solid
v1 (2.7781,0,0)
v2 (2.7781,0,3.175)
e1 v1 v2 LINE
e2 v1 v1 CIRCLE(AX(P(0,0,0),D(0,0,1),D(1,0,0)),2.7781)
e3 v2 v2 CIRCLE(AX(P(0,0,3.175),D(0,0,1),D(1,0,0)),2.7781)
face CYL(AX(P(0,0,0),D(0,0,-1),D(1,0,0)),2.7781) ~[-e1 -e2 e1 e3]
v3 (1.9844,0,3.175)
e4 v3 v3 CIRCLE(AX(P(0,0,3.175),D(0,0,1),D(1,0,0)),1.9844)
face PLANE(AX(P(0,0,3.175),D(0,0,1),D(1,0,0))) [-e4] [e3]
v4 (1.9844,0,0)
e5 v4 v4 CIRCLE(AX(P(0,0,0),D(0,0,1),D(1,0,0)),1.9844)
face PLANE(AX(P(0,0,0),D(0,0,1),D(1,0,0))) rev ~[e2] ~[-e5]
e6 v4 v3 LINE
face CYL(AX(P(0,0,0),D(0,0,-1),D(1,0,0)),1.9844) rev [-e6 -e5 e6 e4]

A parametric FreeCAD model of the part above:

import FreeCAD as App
import Part
import Sketcher
from FreeCAD import Vector
Q = App.Units.Quantity

doc = App.newDocument("Part")
body = doc.addObject("PartDesign::Body", "Body")

sketch1 = body.newObject("Sketcher::SketchObject", "Sketch")
sketch1.AttachmentSupport = (doc.getObject("XY_Plane"), [""])
sketch1.MapMode = "FlatFace"
sketch1.addGeometry(Part.Circle(Vector(0, 0, 0), Vector(0, 0, 1), 2.7781), False)
sketch1.addGeometry(Part.Circle(Vector(0, 0, 0), Vector(0, 0, 1), 1.9844), False)
sketch1.addConstraint(Sketcher.Constraint("Coincident", 0, 3, -1, 1))
sketch1.addConstraint(Sketcher.Constraint("Coincident", 1, 3, -1, 1))
sketch1.addConstraint(Sketcher.Constraint("Diameter", 0, Q("0.218748 in")))
sketch1.addConstraint(Sketcher.Constraint("Diameter", 1, Q("0.156252 in")))
pad1 = body.newObject("PartDesign::Pad", "Pad")
pad1.Profile = sketch1
pad1.Length = Q("0.125 in")

doc.recompute()
